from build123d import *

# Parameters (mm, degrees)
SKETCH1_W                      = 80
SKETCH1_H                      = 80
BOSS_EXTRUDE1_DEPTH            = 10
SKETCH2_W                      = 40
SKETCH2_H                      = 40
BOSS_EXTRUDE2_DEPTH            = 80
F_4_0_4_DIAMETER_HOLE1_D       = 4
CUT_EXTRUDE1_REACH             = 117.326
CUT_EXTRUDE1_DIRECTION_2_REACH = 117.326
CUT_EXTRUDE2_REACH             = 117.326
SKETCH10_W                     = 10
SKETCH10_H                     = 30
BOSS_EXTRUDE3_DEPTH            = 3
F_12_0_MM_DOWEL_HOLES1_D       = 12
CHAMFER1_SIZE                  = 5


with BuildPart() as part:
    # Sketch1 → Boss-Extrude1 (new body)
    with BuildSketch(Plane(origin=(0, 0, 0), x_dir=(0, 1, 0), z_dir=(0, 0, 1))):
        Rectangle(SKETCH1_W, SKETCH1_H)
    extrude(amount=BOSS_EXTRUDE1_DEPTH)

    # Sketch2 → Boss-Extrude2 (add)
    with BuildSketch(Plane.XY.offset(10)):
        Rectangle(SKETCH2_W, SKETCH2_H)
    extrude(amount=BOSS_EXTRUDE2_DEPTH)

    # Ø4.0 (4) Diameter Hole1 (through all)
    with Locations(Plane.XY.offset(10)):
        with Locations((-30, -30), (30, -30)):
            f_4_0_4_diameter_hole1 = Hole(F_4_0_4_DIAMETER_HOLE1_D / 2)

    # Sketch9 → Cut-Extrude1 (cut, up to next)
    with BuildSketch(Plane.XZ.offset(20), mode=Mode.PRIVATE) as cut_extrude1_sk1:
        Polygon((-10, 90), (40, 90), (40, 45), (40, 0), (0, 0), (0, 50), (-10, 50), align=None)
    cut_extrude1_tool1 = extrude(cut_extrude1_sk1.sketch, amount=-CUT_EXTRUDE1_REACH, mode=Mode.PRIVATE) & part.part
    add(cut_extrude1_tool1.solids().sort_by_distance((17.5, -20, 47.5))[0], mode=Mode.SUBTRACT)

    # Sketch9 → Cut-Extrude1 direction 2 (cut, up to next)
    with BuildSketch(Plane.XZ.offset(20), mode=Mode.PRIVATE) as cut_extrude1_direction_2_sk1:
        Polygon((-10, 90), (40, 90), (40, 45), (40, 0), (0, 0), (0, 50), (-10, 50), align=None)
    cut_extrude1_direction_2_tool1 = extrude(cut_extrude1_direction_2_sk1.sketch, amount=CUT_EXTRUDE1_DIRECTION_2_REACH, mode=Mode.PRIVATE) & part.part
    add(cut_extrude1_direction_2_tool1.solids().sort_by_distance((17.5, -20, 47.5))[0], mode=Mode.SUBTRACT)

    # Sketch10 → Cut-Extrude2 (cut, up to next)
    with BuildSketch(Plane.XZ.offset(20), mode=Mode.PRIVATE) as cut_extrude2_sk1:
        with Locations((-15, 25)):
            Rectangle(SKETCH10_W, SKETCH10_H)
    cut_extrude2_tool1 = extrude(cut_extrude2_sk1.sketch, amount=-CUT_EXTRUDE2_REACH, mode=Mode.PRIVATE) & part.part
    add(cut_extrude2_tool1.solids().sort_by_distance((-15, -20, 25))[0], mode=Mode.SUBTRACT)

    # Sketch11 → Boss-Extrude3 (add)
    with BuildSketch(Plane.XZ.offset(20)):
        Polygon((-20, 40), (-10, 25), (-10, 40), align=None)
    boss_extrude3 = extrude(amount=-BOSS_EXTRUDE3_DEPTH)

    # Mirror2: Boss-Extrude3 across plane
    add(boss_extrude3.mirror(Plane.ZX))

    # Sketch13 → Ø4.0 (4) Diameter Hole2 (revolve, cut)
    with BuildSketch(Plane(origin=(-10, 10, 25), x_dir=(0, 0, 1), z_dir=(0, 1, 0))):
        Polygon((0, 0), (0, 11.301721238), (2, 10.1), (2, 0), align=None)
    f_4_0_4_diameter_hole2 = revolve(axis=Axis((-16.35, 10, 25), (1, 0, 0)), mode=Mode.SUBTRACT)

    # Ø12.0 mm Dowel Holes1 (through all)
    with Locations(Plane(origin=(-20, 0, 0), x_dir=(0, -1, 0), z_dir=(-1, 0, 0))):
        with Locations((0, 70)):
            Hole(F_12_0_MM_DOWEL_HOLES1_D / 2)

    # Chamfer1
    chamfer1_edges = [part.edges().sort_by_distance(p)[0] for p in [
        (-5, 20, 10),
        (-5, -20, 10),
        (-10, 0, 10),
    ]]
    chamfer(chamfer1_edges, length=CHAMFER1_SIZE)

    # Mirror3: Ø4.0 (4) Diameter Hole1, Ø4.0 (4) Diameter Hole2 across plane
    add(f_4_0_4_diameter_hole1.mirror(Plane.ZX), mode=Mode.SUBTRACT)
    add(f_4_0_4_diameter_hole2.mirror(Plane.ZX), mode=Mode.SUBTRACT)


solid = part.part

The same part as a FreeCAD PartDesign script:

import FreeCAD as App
import Part
import Sketcher
Q = App.Units.Quantity


def edges_at(feature, points):
    """Names of the edges that pass closest to the given points."""
    edges = feature.Shape.Edges
    near = lambda p: min(range(len(edges)), key=lambda i: edges[i].distToShape(Part.Vertex(*p))[0])
    return sorted({f"Edge{near(p) + 1}" for p in points})


def add_polygon(sketch, points):
    """Adds a closed chain of lines whose ends are joined by coincident constraints."""
    first, n = sketch.GeometryCount, len(points)
    for a, b in zip(points, points[1:] + points[:1]):
        sketch.addGeometry(Part.LineSegment(App.Vector(*a, 0), App.Vector(*b, 0)), False)
    for i in range(n):
        sketch.addConstraint(Sketcher.Constraint("Coincident", first + i, 2, first + (i + 1) % n, 1))

doc = App.newDocument("Part")
body = doc.addObject("PartDesign::Body", "Body")

sketch1 = body.newObject("Sketcher::SketchObject", "Sketch")
sketch1.AttachmentSupport = (doc.getObject("XY_Plane"), [""])
sketch1.MapMode = "FlatFace"
add_polygon(sketch1, [(-40, -40), (40, -40), (40, 40), (-40, 40)])
sketch1.addConstraint(Sketcher.Constraint("Horizontal", 0))
sketch1.addConstraint(Sketcher.Constraint("Vertical", 1))
sketch1.addConstraint(Sketcher.Constraint("Horizontal", 2))
sketch1.addConstraint(Sketcher.Constraint("Vertical", 3))
sketch1.addConstraint(Sketcher.Constraint("Symmetric", 0, 2, 2, 2, -1, 1))
sketch1.addConstraint(Sketcher.Constraint("Equal", 2, 1))
sketch1.addConstraint(Sketcher.Constraint("DistanceX", 0, 1, 0, 2, 80.0))
pad1 = body.newObject("PartDesign::Pad", "Pad")
pad1.Profile = sketch1
pad1.Length = 10

sketch2 = body.newObject("Sketcher::SketchObject", "Sketch001")
sketch2.AttachmentSupport = (doc.getObject("XY_Plane"), [""])
sketch2.MapMode = "FlatFace"
sketch2.AttachmentOffset = App.Placement(App.Vector(0, 0, 10), App.Rotation())
add_polygon(sketch2, [(-20, 20), (-20, -20), (20, -20), (20, 20)])
sketch2.addConstraint(Sketcher.Constraint("Vertical", 0))
sketch2.addConstraint(Sketcher.Constraint("Horizontal", 1))
sketch2.addConstraint(Sketcher.Constraint("Vertical", 2))
sketch2.addConstraint(Sketcher.Constraint("Horizontal", 3))
sketch2.addConstraint(Sketcher.Constraint("Symmetric", 0, 2, 2, 2, -1, 1))
sketch2.addConstraint(Sketcher.Constraint("Equal", 3, 0))
sketch2.addConstraint(Sketcher.Constraint("DistanceX", 1, 1, 1, 2, 40.0))
pad2 = body.newObject("PartDesign::Pad", "Pad001")
pad2.Profile = sketch2
pad2.Length = 80

sketch3 = body.newObject("Sketcher::SketchObject", "Sketch002")
sketch3.AttachmentSupport = (doc.getObject("XY_Plane"), [""])
sketch3.MapMode = "FlatFace"
sketch3.AttachmentOffset = App.Placement(App.Vector(0, 0, 10), App.Rotation())
sketch3.addGeometry(Part.Circle(App.Vector(-30, -30, 0), App.Vector(0, 0, 1), 2), False)
sketch3.addGeometry(Part.Circle(App.Vector(30, -30, 0), App.Vector(0, 0, 1), 2), False)
sketch3.addConstraint(Sketcher.Constraint("Equal", 0, 1))
sketch3.addConstraint(Sketcher.Constraint("Symmetric", 0, 3, 1, 3, -2))
sketch3.addConstraint(Sketcher.Constraint("Diameter", 0, 4.0))
sketch3.addConstraint(Sketcher.Constraint("DistanceX", 0, 3, -1, 1, 30.0))
sketch3.addConstraint(Sketcher.Constraint("DistanceY", 0, 3, -1, 1, 30.0))
doc.recompute()
hole = body.newObject("PartDesign::Hole", "Hole")
hole.Profile = sketch3
hole.ThreadType = "None"
hole.Diameter = 4
hole.DepthType = "ThroughAll"

sketch4 = body.newObject("Sketcher::SketchObject", "Sketch003")
sketch4.AttachmentSupport = (doc.getObject("XZ_Plane"), [""])
sketch4.MapMode = "FlatFace"
sketch4.AttachmentOffset = App.Placement(App.Vector(0, 0, 20), App.Rotation())
add_polygon(sketch4, [(40, 90), (-10, 90), (-10, 50), (0, 50), (0, 0), (40, 0)])
sketch4.addConstraint(Sketcher.Constraint("Horizontal", 0))
sketch4.addConstraint(Sketcher.Constraint("Vertical", 1))
sketch4.addConstraint(Sketcher.Constraint("Horizontal", 2))
sketch4.addConstraint(Sketcher.Constraint("Vertical", 3))
sketch4.addConstraint(Sketcher.Constraint("Horizontal", 4))
sketch4.addConstraint(Sketcher.Constraint("Vertical", 5))
sketch4.addConstraint(Sketcher.Constraint("Coincident", 3, 2, -1, 1))
sketch4.addConstraint(Sketcher.Constraint("Equal", 4, 1))
sketch4.addConstraint(Sketcher.Constraint("Equal", 0, 3))
sketch4.addConstraint(Sketcher.Constraint("DistanceX", 0, 2, 0, 1, 50.0))
sketch4.addConstraint(Sketcher.Constraint("DistanceX", 2, 1, 2, 2, 10.0))
pocket1 = body.newObject("PartDesign::Pocket", "Pocket")
pocket1.Profile = sketch4
pocket1.Length = 60

sketch5 = body.newObject("Sketcher::SketchObject", "Sketch004")
sketch5.AttachmentSupport = (doc.getObject("XZ_Plane"), [""])
sketch5.MapMode = "FlatFace"
sketch5.AttachmentOffset = App.Placement(App.Vector(0, 0, 20), App.Rotation())
add_polygon(sketch5, [(40, 90), (-10, 90), (-10, 50), (0, 50), (0, 0), (40, 0)])
sketch5.addConstraint(Sketcher.Constraint("Horizontal", 0))
sketch5.addConstraint(Sketcher.Constraint("Vertical", 1))
sketch5.addConstraint(Sketcher.Constraint("Horizontal", 2))
sketch5.addConstraint(Sketcher.Constraint("Vertical", 3))
sketch5.addConstraint(Sketcher.Constraint("Horizontal", 4))
sketch5.addConstraint(Sketcher.Constraint("Vertical", 5))
sketch5.addConstraint(Sketcher.Constraint("Coincident", 3, 2, -1, 1))
sketch5.addConstraint(Sketcher.Constraint("Equal", 4, 1))
sketch5.addConstraint(Sketcher.Constraint("Equal", 0, 3))
sketch5.addConstraint(Sketcher.Constraint("DistanceX", 0, 2, 0, 1, 50.0))
sketch5.addConstraint(Sketcher.Constraint("DistanceX", 2, 1, 2, 2, 10.0))
pocket2 = body.newObject("PartDesign::Pocket", "Pocket001")
pocket2.Profile = sketch5
pocket2.Length = 20
pocket2.Reversed = True

sketch6 = body.newObject("Sketcher::SketchObject", "Sketch005")
sketch6.AttachmentSupport = (doc.getObject("XZ_Plane"), [""])
sketch6.MapMode = "FlatFace"
sketch6.AttachmentOffset = App.Placement(App.Vector(0, 0, 20), App.Rotation())
add_polygon(sketch6, [(-20, 40), (-20, 10), (-10, 10), (-10, 40)])
sketch6.addConstraint(Sketcher.Constraint("Vertical", 0))
sketch6.addConstraint(Sketcher.Constraint("Horizontal", 1))
sketch6.addConstraint(Sketcher.Constraint("Vertical", 2))
sketch6.addConstraint(Sketcher.Constraint("Horizontal", 3))
sketch6.addConstraint(Sketcher.Constraint("DistanceX", 1, 1, 1, 2, 10.0))
sketch6.addConstraint(Sketcher.Constraint("DistanceY", 0, 2, 0, 1, 30.0))
sketch6.addConstraint(Sketcher.Constraint("DistanceX", 0, 2, -1, 1, 20.0))
sketch6.addConstraint(Sketcher.Constraint("DistanceY", -1, 1, 0, 2, 10.0))
pocket3 = body.newObject("PartDesign::Pocket", "Pocket002")
pocket3.Profile = sketch6
pocket3.Type = "UpToFirst"

sketch7 = body.newObject("Sketcher::SketchObject", "Sketch006")
sketch7.AttachmentSupport = (doc.getObject("XZ_Plane"), [""])
sketch7.MapMode = "FlatFace"
sketch7.AttachmentOffset = App.Placement(App.Vector(0, 0, 20), App.Rotation())
add_polygon(sketch7, [(-20, 40), (-10, 25), (-10, 40)])
sketch7.addConstraint(Sketcher.Constraint("Vertical", 1))
sketch7.addConstraint(Sketcher.Constraint("Horizontal", 2))
sketch7.addConstraint(Sketcher.Constraint("DistanceX", 2, 2, 2, 1, 10.0))
sketch7.addConstraint(Sketcher.Constraint("DistanceY", 1, 1, 1, 2, 15.0))
sketch7.addConstraint(Sketcher.Constraint("DistanceX", 0, 2, -1, 1, 10.0))
sketch7.addConstraint(Sketcher.Constraint("DistanceY", -1, 1, 0, 2, 25.0))
pad3 = body.newObject("PartDesign::Pad", "Pad002")
pad3.Profile = sketch7
pad3.Length = 3
pad3.Reversed = True
doc.recompute()

mirrored = body.newObject("PartDesign::Mirrored", "Mirrored")
mirrored.Originals = [pad3]
mirrored.MirrorPlane = (doc.getObject("XZ_Plane"), [""])
body.Tip = mirrored

sketch8 = body.newObject("Sketcher::SketchObject", "Sketch007")
sketch8.AttachmentSupport = (doc.getObject("XZ_Plane"), [""])
sketch8.MapMode = "FlatFace"
sketch8.AttachmentOffset = App.Placement(App.Vector(0, 0, -10), App.Rotation())
add_polygon(sketch8, [(1.3, 25), (-10, 25), (-10, 27), (0.1, 27)])
sketch8.addGeometry(Part.LineSegment(App.Vector(-10, 25, 0), App.Vector(1.3, 25, 0)), True)
sketch8.addConstraint(Sketcher.Constraint("Horizontal", 0))
sketch8.addConstraint(Sketcher.Constraint("Vertical", 1))
sketch8.addConstraint(Sketcher.Constraint("Horizontal", 2))
sketch8.addConstraint(Sketcher.Constraint("Horizontal", 4))
sketch8.addConstraint(Sketcher.Constraint("Coincident", 4, 1, 0, 2))
sketch8.addConstraint(Sketcher.Constraint("Equal", 0, 4))
sketch8.addConstraint(Sketcher.Constraint("DistanceY", 1, 1, 1, 2, 2.0))
sketch8.addConstraint(Sketcher.Constraint("Angle", 3, Q("-59 deg")))
sketch8.addConstraint(Sketcher.Constraint("DistanceX", 2, 1, 2, 2, 10.1))
sketch8.addConstraint(Sketcher.Constraint("DistanceX", 0, 2, -1, 1, 10.0))
sketch8.addConstraint(Sketcher.Constraint("DistanceY", -1, 1, 0, 2, 25.0))
groove = body.newObject("PartDesign::Groove", "Groove")
groove.Profile = sketch8
groove.ReferenceAxis = (sketch8, ["Axis0"])
groove.Angle = 360

sketch9 = body.newObject("Sketcher::SketchObject", "Sketch008")
sketch9.AttachmentSupport = (doc.getObject("YZ_Plane"), [""])
sketch9.MapMode = "FlatFace"
sketch9.AttachmentOffset = App.Placement(App.Vector(0, 0, -20), App.Rotation())
sketch9.addGeometry(Part.Circle(App.Vector(0, 70, 0), App.Vector(0, 0, 1), 6), False)
sketch9.addConstraint(Sketcher.Constraint("PointOnObject", 0, 3, -2))
sketch9.addConstraint(Sketcher.Constraint("Diameter", 0, 12.0))
sketch9.addConstraint(Sketcher.Constraint("DistanceY", -1, 1, 0, 3, 70.0))
doc.recompute()
hole2 = body.newObject("PartDesign::Hole", "Hole001")
hole2.Profile = sketch9
hole2.ThreadType = "None"
hole2.Diameter = 12
hole2.DepthType = "ThroughAll"
hole2.Reversed = True
doc.recompute()

chamfer = body.newObject("PartDesign::Chamfer", "Chamfer")
chamfer.Base = (hole2, edges_at(hole2, [(-5, 20, 10), (-5, -20, 10), (-10, 0, 10)]))
chamfer.Size = 5
doc.recompute()

mirrored2 = body.newObject("PartDesign::Mirrored", "Mirrored001")
mirrored2.Originals = [hole, groove]
mirrored2.MirrorPlane = (doc.getObject("XZ_Plane"), [""])
body.Tip = mirrored2

doc.recompute()
